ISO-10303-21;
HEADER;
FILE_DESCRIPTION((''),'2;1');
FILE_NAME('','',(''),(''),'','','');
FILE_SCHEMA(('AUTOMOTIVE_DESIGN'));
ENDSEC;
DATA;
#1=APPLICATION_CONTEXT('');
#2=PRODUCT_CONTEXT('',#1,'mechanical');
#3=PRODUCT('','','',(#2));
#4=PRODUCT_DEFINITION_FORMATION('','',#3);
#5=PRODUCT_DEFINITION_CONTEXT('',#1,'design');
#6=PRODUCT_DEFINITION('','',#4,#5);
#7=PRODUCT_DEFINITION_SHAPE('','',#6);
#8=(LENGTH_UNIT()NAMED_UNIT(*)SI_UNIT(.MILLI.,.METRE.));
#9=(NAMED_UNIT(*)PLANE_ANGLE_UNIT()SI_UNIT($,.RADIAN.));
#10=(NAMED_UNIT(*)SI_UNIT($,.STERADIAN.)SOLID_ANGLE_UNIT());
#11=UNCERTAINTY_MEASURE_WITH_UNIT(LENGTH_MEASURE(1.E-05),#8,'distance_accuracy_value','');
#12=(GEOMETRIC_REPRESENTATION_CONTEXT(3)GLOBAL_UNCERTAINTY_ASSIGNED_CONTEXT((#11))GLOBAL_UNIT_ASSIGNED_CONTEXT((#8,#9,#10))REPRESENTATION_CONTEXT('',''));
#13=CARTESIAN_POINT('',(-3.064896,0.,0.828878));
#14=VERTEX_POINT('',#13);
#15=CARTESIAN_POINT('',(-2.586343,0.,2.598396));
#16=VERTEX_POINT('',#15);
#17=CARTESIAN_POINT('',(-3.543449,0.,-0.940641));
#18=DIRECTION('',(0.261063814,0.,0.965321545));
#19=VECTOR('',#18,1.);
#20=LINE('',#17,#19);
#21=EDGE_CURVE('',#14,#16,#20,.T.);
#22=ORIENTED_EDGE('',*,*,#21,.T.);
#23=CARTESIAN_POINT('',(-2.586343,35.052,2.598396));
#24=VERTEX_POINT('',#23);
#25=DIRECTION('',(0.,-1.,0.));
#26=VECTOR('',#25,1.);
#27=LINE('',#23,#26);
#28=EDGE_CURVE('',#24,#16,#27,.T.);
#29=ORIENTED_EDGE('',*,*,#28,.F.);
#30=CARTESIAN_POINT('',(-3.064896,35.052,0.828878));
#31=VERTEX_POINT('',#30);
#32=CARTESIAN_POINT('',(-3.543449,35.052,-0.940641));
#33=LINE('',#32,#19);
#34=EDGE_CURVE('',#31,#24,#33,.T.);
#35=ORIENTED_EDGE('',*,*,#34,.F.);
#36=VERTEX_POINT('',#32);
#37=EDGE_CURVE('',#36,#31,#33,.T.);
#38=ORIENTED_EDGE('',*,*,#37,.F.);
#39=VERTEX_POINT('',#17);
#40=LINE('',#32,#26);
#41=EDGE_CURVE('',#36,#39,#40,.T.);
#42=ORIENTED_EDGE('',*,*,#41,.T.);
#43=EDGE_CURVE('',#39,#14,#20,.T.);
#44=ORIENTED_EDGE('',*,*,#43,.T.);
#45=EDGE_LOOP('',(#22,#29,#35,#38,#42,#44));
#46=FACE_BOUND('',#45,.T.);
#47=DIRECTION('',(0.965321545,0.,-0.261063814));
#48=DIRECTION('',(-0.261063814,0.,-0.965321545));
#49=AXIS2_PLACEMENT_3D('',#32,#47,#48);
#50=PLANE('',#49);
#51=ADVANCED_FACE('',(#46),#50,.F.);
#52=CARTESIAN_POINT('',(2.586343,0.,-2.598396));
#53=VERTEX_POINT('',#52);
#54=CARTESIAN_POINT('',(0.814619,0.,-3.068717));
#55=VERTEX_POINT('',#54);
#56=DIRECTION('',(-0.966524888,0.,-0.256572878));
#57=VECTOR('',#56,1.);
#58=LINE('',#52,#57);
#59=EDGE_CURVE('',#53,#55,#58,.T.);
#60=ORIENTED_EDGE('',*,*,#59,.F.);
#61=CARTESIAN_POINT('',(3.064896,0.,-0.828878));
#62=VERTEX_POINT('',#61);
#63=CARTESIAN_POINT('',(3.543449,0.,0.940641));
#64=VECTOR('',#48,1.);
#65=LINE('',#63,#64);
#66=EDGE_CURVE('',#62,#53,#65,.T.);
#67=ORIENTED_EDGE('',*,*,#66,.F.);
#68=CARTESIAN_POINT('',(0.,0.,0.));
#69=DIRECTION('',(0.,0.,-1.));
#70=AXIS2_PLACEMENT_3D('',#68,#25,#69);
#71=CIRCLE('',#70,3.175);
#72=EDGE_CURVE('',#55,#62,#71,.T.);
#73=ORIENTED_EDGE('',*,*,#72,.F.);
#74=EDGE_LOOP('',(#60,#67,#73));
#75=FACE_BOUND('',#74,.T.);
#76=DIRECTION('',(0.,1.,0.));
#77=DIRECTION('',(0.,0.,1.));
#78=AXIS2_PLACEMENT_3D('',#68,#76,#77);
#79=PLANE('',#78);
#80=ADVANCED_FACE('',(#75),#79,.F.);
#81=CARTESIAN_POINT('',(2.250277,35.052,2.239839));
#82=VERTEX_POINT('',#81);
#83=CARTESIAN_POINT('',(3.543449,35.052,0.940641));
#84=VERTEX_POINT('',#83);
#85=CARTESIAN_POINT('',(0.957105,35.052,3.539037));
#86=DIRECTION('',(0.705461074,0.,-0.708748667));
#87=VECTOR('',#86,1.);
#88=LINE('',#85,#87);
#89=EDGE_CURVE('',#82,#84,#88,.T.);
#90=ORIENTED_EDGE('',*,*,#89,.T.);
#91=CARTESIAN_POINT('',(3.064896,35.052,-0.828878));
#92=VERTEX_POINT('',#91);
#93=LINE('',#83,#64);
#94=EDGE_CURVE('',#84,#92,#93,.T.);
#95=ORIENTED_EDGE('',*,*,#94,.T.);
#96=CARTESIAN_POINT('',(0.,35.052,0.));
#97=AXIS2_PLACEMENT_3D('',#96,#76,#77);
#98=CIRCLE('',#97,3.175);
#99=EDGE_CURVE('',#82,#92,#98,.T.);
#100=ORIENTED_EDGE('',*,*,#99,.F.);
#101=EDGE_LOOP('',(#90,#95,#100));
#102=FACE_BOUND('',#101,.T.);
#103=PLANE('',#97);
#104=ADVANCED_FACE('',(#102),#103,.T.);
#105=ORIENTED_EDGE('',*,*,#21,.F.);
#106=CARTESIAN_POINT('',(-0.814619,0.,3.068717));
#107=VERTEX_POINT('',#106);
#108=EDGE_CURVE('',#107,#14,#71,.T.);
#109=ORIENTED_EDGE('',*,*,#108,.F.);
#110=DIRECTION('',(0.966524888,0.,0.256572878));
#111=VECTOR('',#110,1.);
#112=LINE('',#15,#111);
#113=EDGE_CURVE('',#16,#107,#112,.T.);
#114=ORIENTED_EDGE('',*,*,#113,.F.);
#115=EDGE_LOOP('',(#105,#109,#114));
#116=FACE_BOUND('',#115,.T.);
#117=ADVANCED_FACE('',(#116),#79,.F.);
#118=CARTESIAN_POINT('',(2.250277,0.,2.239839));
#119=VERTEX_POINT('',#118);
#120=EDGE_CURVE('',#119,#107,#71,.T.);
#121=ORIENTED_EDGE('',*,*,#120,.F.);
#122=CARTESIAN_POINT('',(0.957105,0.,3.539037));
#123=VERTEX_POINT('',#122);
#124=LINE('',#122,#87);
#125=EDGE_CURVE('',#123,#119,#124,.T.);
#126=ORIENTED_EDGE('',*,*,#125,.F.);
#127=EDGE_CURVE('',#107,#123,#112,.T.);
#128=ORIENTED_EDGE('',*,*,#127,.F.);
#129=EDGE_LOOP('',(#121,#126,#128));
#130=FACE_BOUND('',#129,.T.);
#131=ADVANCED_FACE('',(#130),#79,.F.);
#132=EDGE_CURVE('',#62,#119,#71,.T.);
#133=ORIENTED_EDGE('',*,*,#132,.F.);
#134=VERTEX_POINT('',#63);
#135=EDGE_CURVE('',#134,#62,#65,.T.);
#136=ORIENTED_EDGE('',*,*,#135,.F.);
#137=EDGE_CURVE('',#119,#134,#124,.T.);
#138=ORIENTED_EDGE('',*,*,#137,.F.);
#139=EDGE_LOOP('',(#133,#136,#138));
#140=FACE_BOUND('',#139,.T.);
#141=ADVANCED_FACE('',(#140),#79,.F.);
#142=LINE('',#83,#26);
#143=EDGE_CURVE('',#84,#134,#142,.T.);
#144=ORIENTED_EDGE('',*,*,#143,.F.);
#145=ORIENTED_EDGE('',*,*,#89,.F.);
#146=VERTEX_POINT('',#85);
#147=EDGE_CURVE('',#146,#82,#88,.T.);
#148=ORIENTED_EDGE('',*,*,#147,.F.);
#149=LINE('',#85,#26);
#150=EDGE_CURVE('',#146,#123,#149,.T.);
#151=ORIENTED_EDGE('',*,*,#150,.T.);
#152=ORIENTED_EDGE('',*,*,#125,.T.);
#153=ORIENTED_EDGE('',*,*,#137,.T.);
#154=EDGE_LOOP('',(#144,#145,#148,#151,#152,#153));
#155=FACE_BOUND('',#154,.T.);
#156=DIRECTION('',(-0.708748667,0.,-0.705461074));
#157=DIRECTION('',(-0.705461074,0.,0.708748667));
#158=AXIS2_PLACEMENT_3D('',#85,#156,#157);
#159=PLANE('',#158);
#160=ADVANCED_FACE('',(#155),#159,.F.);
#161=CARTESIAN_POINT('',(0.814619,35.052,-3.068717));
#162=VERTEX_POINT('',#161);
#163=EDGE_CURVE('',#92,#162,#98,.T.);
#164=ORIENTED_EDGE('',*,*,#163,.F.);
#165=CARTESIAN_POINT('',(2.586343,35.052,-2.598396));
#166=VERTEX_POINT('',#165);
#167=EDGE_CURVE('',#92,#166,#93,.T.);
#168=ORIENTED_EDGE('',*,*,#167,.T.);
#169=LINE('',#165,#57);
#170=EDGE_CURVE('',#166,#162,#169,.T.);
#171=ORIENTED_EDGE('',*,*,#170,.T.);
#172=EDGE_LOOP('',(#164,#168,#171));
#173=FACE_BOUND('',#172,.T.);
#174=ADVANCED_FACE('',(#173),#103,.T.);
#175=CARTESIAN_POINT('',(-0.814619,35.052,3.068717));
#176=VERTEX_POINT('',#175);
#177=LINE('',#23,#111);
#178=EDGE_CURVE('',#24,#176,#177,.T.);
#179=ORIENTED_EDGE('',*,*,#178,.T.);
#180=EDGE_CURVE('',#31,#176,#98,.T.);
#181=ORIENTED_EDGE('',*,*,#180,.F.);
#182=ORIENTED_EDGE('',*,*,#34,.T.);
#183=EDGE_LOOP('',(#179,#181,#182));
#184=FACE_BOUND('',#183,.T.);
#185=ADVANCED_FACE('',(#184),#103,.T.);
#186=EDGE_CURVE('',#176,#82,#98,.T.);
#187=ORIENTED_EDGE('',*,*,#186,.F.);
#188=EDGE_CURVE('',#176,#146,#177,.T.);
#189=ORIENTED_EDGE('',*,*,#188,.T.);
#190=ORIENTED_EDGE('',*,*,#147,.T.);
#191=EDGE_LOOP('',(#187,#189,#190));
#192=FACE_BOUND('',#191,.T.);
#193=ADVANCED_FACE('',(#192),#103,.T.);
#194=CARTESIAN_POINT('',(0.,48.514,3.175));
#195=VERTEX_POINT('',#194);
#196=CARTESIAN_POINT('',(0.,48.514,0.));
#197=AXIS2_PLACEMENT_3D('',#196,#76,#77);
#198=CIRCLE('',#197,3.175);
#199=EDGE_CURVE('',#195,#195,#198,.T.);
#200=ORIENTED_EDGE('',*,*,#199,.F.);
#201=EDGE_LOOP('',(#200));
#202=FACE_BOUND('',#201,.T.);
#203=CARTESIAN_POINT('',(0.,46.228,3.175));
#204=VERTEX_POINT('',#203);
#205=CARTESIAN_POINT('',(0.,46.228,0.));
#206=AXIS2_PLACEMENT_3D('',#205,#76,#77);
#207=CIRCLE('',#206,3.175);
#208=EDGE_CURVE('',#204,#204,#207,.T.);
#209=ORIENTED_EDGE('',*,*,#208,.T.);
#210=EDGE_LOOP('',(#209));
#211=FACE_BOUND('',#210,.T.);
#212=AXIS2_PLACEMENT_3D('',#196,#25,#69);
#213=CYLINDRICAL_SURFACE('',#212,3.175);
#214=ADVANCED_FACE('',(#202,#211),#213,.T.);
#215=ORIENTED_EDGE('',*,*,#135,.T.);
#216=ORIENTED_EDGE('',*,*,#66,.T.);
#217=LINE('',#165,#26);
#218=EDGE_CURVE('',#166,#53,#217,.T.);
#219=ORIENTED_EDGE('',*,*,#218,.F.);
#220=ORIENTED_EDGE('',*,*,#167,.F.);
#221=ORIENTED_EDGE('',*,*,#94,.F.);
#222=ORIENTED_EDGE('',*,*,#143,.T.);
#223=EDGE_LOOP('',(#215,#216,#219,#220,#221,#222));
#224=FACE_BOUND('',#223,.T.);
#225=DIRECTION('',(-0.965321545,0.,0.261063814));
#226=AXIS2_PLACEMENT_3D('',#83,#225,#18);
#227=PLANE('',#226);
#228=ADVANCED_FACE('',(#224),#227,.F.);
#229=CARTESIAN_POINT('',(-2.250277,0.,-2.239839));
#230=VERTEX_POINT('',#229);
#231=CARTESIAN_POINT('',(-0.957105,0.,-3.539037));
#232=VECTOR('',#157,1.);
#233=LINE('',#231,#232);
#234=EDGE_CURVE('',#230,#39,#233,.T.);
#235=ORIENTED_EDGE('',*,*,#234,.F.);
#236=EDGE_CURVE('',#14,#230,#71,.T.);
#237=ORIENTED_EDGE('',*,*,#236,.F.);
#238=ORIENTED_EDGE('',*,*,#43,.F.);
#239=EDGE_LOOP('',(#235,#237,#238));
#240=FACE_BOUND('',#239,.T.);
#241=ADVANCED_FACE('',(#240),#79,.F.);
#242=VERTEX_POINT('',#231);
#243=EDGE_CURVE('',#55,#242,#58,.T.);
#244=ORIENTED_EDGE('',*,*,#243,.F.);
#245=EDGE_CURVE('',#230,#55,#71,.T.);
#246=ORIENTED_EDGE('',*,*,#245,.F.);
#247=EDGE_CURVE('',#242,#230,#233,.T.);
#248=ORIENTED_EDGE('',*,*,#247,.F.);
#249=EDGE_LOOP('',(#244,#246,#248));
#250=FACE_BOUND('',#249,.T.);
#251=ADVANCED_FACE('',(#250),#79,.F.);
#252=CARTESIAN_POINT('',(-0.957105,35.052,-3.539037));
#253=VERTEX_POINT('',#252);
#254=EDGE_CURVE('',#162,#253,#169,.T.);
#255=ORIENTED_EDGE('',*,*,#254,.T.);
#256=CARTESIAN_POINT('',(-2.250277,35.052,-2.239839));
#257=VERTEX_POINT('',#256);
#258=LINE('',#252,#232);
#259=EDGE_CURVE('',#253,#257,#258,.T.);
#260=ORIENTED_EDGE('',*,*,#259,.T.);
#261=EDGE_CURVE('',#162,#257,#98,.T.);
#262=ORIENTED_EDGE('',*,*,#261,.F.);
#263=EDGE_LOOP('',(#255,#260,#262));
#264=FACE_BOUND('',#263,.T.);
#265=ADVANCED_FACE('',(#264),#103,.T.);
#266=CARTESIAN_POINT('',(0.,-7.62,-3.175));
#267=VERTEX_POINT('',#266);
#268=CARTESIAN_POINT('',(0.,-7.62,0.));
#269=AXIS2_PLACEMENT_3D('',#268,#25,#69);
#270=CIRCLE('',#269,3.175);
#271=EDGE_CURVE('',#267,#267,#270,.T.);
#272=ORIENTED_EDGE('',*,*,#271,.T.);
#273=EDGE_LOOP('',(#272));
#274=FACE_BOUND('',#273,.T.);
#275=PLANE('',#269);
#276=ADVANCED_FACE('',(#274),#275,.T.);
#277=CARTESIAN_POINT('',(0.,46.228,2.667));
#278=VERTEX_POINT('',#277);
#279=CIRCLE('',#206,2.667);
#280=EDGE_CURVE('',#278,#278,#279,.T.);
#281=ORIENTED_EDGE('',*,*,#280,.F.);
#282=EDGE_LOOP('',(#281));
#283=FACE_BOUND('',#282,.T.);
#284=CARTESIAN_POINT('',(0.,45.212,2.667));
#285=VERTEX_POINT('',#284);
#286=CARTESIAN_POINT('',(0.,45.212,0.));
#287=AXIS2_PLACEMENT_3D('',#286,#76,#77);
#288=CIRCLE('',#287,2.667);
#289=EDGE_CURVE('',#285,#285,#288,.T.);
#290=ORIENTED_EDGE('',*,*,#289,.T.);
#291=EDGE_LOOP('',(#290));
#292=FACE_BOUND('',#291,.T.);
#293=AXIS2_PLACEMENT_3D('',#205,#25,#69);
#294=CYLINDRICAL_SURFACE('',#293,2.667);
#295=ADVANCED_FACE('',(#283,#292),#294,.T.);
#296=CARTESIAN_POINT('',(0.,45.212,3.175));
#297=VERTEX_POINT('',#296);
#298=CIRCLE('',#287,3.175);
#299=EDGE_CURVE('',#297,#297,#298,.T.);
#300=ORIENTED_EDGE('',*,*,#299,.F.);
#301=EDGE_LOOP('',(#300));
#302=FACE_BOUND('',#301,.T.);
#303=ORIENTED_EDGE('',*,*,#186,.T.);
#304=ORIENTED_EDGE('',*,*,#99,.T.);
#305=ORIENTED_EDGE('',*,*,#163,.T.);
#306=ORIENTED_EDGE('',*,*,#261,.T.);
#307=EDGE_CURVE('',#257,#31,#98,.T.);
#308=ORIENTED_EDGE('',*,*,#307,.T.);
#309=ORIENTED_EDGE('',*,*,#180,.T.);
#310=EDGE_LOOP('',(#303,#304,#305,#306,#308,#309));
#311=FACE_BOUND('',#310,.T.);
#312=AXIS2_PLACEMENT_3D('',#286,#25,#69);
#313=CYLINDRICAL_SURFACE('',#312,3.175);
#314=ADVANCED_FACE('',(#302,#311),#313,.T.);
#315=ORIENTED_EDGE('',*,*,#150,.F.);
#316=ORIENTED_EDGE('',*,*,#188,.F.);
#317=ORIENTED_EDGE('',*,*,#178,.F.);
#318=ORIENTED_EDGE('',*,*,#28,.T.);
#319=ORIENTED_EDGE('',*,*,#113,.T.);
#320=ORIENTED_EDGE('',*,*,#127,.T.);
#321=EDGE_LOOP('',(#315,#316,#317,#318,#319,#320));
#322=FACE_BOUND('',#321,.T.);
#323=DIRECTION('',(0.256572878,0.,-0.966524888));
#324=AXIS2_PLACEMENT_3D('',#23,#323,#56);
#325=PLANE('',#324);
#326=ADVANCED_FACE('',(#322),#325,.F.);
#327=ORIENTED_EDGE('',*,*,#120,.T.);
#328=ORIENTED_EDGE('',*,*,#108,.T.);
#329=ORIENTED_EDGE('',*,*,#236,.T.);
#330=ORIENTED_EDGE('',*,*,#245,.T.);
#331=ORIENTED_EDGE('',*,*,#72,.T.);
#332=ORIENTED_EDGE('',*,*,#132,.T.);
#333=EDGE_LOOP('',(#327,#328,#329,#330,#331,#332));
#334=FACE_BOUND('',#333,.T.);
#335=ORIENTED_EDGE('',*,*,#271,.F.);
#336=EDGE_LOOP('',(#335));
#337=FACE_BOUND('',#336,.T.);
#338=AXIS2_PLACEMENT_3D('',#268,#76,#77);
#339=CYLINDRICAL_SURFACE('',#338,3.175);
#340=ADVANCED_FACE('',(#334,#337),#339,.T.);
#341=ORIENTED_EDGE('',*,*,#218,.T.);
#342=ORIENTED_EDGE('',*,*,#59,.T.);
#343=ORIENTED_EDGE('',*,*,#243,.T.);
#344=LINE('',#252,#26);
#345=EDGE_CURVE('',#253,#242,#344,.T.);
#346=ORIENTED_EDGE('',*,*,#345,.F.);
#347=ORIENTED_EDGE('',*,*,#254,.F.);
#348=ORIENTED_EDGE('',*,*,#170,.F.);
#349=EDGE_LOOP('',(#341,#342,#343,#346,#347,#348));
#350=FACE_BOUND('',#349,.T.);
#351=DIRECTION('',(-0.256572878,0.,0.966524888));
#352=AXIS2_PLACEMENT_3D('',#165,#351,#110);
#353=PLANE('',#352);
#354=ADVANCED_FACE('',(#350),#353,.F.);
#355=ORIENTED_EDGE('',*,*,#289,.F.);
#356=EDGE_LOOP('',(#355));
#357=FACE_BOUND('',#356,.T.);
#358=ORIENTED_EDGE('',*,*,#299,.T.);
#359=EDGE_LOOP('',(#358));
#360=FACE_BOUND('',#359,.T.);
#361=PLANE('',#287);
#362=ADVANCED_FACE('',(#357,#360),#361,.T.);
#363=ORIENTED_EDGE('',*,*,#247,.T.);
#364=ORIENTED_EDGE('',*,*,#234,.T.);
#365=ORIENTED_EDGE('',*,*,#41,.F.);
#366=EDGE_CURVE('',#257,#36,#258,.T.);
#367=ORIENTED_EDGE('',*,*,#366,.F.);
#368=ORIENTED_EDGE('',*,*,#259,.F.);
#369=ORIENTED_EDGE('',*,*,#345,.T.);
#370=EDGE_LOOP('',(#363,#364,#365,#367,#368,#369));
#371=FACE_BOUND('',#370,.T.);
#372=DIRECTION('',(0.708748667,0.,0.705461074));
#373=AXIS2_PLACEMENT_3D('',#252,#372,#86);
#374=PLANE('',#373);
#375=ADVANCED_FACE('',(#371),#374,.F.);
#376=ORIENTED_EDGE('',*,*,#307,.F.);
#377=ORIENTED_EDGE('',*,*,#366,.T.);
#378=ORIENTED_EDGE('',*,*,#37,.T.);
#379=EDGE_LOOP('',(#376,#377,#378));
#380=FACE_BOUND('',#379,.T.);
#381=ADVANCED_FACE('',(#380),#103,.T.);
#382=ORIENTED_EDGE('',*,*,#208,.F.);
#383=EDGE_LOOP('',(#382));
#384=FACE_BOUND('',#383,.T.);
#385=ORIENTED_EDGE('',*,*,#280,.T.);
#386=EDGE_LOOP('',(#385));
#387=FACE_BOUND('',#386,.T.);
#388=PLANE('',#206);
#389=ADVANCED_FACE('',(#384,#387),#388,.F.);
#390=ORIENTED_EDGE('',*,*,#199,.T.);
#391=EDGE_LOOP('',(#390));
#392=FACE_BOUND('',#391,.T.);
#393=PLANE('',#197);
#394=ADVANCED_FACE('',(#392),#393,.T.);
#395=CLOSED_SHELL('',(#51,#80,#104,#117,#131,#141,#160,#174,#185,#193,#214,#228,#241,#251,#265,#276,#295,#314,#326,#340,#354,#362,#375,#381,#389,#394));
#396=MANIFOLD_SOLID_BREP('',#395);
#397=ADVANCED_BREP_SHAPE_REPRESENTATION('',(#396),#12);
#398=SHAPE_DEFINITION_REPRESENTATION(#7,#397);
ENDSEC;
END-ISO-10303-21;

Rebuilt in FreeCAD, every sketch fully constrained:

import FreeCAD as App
import Part
import Sketcher
Q = App.Units.Quantity

doc = App.newDocument("Part")
body = doc.addObject("PartDesign::Body", "Body")

sketch1 = body.newObject("Sketcher::SketchObject", "Sketch")
sketch1.AttachmentSupport = (doc.getObject("XZ_Plane"), [""])
sketch1.MapMode = "FlatFace"
sketch1.addGeometry(Part.LineSegment(App.Vector(2.586343, -2.598396, 0), App.Vector(-0.957105, -3.539037, 0)), False)
sketch1.addGeometry(Part.LineSegment(App.Vector(-0.957105, -3.539037, 0), App.Vector(-3.543449, -0.940641, 0)), False)
sketch1.addGeometry(Part.LineSegment(App.Vector(-3.543449, -0.940641, 0), App.Vector(-2.586343, 2.598396, 0)), False)
sketch1.addGeometry(Part.LineSegment(App.Vector(-2.586343, 2.598396, 0), App.Vector(0.957105, 3.539037, 0)), False)
sketch1.addGeometry(Part.LineSegment(App.Vector(0.957105, 3.539037, 0), App.Vector(3.543449, 0.940641, 0)), False)
sketch1.addGeometry(Part.LineSegment(App.Vector(3.543449, 0.940641, 0), App.Vector(2.586343, -2.598396, 0)), False)
sketch1.addConstraint(Sketcher.Constraint("Coincident", 0, 2, 1, 1))
sketch1.addConstraint(Sketcher.Constraint("Coincident", 1, 2, 2, 1))
sketch1.addConstraint(Sketcher.Constraint("Coincident", 2, 2, 3, 1))
sketch1.addConstraint(Sketcher.Constraint("Coincident", 3, 2, 4, 1))
sketch1.addConstraint(Sketcher.Constraint("Coincident", 4, 2, 5, 1))
sketch1.addConstraint(Sketcher.Constraint("Coincident", 5, 2, 0, 1))
sketch1.addConstraint(Sketcher.Constraint("Symmetric", 0, 2, 3, 2, -1, 1))
sketch1.addConstraint(Sketcher.Constraint("Symmetric", 1, 2, 4, 2, -1, 1))
sketch1.addConstraint(Sketcher.Constraint("Symmetric", 2, 2, 5, 2, -1, 1))
sketch1.addConstraint(Sketcher.Constraint("Equal", 0, 1))
sketch1.addConstraint(Sketcher.Constraint("Equal", 1, 2))
sketch1.addConstraint(Sketcher.Constraint("DistanceX", 1, 2, -1, 1, Q("3.543449 mm")))
sketch1.addConstraint(Sketcher.Constraint("DistanceY", 1, 2, -1, 1, Q("0.940641 mm")))
sketch1.addConstraint(Sketcher.Constraint("DistanceX", 2, 2, 3, 2, Q("3.543449 mm")))
sketch1.addConstraint(Sketcher.Constraint("DistanceY", 2, 2, 3, 2, Q("0.940641 mm")))
pad1 = body.newObject("PartDesign::Pad", "Pad")
pad1.Profile = sketch1
pad1.Length = Q("1.38 in")
pad1.Reversed = True

sketch2 = body.newObject("Sketcher::SketchObject", "Sketch001")
sketch2.AttachmentSupport = (doc.getObject("XZ_Plane"), [""])
sketch2.MapMode = "FlatFace"
sketch2.AttachmentOffset = App.Placement(App.Vector(0, 0, -1.38 * 25.4), App.Rotation())
sketch2.addGeometry(Part.Circle(App.Vector(0, 0, 0), App.Vector(0, 0, 1), 3.175), False)
sketch2.addConstraint(Sketcher.Constraint("Coincident", 0, 3, -1, 1))
sketch2.addConstraint(Sketcher.Constraint("Diameter", 0, Q("0.25 in")))
pad2 = body.newObject("PartDesign::Pad", "Pad001")
pad2.Profile = sketch2
pad2.Length = Q("0.4 in")
pad2.Reversed = True

sketch3 = body.newObject("Sketcher::SketchObject", "Sketch002")
sketch3.AttachmentSupport = (doc.getObject("XZ_Plane"), [""])
sketch3.MapMode = "FlatFace"
sketch3.AttachmentOffset = App.Placement(App.Vector(0, 0, -1.78 * 25.4), App.Rotation())
sketch3.addGeometry(Part.Circle(App.Vector(0, 0, 0), App.Vector(0, 0, 1), 2.667), False)
sketch3.addConstraint(Sketcher.Constraint("Coincident", 0, 3, -1, 1))
sketch3.addConstraint(Sketcher.Constraint("Diameter", 0, Q("0.21 in")))
pad3 = body.newObject("PartDesign::Pad", "Pad002")
pad3.Profile = sketch3
pad3.Length = Q("0.04 in")
pad3.Reversed = True

sketch4 = body.newObject("Sketcher::SketchObject", "Sketch003")
sketch4.AttachmentSupport = (doc.getObject("XZ_Plane"), [""])
sketch4.MapMode = "FlatFace"
sketch4.AttachmentOffset = App.Placement(App.Vector(0, 0, -1.82 * 25.4), App.Rotation())
sketch4.addGeometry(Part.Circle(App.Vector(0, 0, 0), App.Vector(0, 0, 1), 3.175), False)
sketch4.addConstraint(Sketcher.Constraint("Coincident", 0, 3, -1, 1))
sketch4.addConstraint(Sketcher.Constraint("Diameter", 0, Q("0.25 in")))
pad4 = body.newObject("PartDesign::Pad", "Pad003")
pad4.Profile = sketch4
pad4.Length = Q("0.09 in")
pad4.Reversed = True

sketch5 = body.newObject("Sketcher::SketchObject", "Sketch004")
sketch5.AttachmentSupport = (doc.getObject("XZ_Plane"), [""])
sketch5.MapMode = "FlatFace"
sketch5.AttachmentOffset = App.Placement(App.Vector(0, 0, 0.3 * 25.4), App.Rotation())
sketch5.addGeometry(Part.Circle(App.Vector(0, 0, 0), App.Vector(0, 0, 1), 3.175), False)
sketch5.addConstraint(Sketcher.Constraint("Coincident", 0, 3, -1, 1))
sketch5.addConstraint(Sketcher.Constraint("Diameter", 0, Q("0.25 in")))
pad5 = body.newObject("PartDesign::Pad", "Pad004")
pad5.Profile = sketch5
pad5.Length = Q("0.3 in")
pad5.Reversed = True

doc.recompute()
